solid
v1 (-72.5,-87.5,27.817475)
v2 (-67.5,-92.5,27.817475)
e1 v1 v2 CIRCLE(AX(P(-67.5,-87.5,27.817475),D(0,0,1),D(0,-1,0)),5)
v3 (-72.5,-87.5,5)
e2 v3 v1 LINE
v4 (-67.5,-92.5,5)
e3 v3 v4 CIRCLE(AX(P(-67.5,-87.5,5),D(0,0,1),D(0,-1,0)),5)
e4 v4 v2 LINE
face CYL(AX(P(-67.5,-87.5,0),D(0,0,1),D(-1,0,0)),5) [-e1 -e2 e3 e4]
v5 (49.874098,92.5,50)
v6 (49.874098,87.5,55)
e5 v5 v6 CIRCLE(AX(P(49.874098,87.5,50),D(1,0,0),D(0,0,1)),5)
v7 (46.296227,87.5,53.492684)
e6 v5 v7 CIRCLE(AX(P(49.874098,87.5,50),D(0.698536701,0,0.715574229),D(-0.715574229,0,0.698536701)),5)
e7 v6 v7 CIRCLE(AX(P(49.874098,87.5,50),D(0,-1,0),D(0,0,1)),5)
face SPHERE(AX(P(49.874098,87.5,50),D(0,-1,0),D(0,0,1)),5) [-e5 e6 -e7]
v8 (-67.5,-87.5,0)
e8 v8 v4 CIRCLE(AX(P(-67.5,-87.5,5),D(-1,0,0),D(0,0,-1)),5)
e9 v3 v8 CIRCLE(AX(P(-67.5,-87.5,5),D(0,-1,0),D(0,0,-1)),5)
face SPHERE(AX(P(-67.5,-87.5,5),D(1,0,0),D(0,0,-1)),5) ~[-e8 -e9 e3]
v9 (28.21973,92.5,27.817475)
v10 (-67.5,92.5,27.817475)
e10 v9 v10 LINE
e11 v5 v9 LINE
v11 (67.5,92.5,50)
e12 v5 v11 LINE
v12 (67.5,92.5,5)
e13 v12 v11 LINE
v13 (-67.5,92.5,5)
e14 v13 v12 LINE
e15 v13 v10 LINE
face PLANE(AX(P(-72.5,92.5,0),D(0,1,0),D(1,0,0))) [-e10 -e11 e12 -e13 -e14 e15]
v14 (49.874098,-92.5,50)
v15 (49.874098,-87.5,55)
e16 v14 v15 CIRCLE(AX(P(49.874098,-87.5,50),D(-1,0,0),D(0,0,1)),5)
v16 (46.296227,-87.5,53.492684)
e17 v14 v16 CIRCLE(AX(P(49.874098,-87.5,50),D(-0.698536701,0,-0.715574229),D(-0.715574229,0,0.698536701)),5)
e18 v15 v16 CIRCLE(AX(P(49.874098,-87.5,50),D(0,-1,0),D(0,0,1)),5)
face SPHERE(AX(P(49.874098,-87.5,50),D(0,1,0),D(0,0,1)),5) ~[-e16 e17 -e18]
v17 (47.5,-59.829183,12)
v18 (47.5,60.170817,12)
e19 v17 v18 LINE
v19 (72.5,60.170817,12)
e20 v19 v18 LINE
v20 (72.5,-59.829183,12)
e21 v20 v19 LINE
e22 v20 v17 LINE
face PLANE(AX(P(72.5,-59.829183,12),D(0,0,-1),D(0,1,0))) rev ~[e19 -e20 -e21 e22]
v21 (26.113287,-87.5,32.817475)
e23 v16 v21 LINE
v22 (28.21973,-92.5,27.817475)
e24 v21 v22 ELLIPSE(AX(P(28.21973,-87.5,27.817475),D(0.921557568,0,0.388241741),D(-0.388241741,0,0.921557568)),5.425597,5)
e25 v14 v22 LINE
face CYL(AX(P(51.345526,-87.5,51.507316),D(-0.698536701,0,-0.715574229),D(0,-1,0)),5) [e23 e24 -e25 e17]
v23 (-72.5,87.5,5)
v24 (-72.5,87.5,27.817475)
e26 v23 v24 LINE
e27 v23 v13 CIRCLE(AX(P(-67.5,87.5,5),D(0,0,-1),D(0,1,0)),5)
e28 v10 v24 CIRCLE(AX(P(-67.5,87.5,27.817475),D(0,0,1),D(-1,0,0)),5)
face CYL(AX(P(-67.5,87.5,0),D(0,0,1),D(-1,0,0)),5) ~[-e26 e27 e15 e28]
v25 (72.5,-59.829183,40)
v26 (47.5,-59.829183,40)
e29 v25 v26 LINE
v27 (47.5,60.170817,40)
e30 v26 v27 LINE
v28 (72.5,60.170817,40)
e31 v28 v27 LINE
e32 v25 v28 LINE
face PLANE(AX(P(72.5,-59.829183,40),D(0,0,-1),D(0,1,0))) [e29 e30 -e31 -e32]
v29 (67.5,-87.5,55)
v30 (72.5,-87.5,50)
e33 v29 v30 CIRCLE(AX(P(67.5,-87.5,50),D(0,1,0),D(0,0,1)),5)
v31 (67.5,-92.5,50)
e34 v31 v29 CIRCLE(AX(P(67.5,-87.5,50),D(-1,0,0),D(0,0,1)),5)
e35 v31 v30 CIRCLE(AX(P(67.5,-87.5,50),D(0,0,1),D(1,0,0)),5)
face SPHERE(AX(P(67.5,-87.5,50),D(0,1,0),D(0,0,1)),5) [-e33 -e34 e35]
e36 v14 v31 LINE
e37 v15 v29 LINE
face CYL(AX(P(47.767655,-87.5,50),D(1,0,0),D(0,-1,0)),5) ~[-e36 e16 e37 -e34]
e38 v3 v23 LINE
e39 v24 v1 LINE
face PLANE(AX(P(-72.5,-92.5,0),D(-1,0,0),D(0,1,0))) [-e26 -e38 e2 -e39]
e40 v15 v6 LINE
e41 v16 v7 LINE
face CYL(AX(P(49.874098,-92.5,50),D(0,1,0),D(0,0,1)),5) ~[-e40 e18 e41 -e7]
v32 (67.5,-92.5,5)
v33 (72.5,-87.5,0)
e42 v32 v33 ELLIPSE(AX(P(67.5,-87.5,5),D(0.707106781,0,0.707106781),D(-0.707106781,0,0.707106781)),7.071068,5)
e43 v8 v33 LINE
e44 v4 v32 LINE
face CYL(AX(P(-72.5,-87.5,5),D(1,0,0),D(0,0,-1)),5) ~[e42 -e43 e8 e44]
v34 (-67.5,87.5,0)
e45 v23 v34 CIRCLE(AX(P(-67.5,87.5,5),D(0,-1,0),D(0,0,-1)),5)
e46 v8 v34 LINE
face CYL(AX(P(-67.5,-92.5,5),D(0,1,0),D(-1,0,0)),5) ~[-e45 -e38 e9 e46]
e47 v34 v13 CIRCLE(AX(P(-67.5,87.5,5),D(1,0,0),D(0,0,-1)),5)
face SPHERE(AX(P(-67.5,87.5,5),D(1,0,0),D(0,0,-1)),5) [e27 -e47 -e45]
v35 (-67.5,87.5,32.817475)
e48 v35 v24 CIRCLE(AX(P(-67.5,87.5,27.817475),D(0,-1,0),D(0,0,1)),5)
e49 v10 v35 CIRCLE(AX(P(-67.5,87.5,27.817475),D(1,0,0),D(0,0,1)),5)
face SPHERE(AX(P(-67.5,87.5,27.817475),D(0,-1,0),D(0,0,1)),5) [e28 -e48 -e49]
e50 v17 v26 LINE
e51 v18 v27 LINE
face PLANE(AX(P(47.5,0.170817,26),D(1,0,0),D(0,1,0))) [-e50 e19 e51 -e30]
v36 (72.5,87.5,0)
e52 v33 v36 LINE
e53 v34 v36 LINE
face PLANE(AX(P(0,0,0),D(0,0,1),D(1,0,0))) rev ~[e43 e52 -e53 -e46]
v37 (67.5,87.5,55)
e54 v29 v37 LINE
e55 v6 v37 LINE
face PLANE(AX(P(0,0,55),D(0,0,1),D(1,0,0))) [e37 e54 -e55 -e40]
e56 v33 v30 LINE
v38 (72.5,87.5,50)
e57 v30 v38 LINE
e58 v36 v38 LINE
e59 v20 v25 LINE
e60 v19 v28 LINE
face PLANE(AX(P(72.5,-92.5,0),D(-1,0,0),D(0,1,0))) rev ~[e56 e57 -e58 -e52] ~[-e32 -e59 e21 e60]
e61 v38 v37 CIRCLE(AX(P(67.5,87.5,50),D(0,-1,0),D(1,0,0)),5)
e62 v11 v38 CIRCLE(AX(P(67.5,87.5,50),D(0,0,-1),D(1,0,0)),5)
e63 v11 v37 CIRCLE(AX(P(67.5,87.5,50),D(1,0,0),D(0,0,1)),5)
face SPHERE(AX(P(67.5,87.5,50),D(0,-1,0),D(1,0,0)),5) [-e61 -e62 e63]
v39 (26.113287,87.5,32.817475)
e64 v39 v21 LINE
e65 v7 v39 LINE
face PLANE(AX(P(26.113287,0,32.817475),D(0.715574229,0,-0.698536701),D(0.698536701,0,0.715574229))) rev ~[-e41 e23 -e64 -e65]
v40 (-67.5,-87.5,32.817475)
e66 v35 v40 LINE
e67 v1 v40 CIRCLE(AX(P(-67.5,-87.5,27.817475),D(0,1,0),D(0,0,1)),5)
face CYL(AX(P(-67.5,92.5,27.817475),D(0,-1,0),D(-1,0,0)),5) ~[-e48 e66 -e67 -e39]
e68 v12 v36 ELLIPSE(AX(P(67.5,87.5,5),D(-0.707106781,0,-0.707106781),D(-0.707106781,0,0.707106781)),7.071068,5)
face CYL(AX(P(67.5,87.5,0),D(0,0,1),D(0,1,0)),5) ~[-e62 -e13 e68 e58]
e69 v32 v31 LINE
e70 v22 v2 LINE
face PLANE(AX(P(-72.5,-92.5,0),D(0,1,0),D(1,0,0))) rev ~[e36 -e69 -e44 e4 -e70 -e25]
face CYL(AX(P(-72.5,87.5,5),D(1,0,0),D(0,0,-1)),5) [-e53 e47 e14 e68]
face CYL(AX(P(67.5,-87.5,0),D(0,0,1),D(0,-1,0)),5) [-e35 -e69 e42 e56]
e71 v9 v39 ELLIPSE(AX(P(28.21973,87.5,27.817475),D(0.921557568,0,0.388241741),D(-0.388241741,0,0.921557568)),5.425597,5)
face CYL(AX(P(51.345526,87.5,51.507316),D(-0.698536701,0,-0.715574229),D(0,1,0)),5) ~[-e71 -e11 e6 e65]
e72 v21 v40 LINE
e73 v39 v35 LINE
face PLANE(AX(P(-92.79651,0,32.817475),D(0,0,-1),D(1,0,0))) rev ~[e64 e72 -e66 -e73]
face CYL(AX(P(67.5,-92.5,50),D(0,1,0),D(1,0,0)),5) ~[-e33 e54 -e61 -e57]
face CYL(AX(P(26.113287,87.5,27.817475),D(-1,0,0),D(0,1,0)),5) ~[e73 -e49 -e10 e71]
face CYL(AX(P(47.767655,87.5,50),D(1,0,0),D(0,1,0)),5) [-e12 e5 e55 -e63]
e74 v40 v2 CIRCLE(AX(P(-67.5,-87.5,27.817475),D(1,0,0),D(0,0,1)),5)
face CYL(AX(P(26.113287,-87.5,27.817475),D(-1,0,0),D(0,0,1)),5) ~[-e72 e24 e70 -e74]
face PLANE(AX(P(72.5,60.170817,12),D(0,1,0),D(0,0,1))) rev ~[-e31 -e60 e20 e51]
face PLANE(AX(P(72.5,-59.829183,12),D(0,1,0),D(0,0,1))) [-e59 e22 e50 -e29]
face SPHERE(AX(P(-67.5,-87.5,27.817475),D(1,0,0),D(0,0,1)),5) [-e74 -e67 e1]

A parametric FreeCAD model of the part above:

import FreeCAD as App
import Part
import Sketcher

V = App.Vector


def edges_at(feature, points):
    """Names of the edges that pass closest to the given points."""
    edges = feature.Shape.Edges
    near = lambda p: min(range(len(edges)), key=lambda i: edges[i].distToShape(Part.Vertex(*p))[0])
    return sorted({f"Edge{near(p) + 1}" for p in points})


def add_polygon(sketch, points):
    """Adds a closed chain of lines whose ends are joined by coincident constraints."""
    first, n = sketch.GeometryCount, len(points)
    for a, b in zip(points, points[1:] + points[:1]):
        sketch.addGeometry(Part.LineSegment(App.Vector(*a, 0), App.Vector(*b, 0)), False)
    for i in range(n):
        sketch.addConstraint(Sketcher.Constraint("Coincident", first + i, 2, first + (i + 1) % n, 1))

doc = App.newDocument("Part")
body = doc.addObject("PartDesign::Body", "Body")

# Sketch on XY plane
sketch1 = body.newObject("Sketcher::SketchObject", "Sketch")
sketch1.AttachmentSupport = (doc.getObject("XY_Plane"), [""])
sketch1.MapMode = "FlatFace"
add_polygon(sketch1, [(-72, 92), (-72, -92), (72, -92), (72, 92)])  # lines 0-3
sketch1.addConstraint(Sketcher.Constraint("Vertical", 0))
sketch1.addConstraint(Sketcher.Constraint("Horizontal", 1))
sketch1.addConstraint(Sketcher.Constraint("Vertical", 2))
sketch1.addConstraint(Sketcher.Constraint("Horizontal", 3))
sketch1.addConstraint(Sketcher.Constraint("Symmetric", 0, 2, 2, 2, -1, 1))
sketch1.addConstraint(Sketcher.Constraint("DistanceX", 1, 1, 1, 2, 145.0))
sketch1.addConstraint(Sketcher.Constraint("DistanceY", 0, 2, 0, 1, 185.0))
pad1 = body.newObject("PartDesign::Pad", "Pad")
pad1.Profile = sketch1
pad1.Length = 55

# Sketch on XZ plane
sketch2 = body.newObject("Sketcher::SketchObject", "Sketch001")
sketch2.AttachmentSupport = (doc.getObject("XZ_Plane"), [""])
sketch2.MapMode = "FlatFace"
add_polygon(sketch2, [(-93, 55), (-93, 33), (26, 33), (48, 55)])  # lines 0-3
sketch2.addConstraint(Sketcher.Constraint("Horizontal", 1))
sketch2.addConstraint(Sketcher.Constraint("Horizontal", 3))
sketch2.addConstraint(Sketcher.Constraint("Distance", 0, 22.187128))
sketch2.addConstraint(Sketcher.Constraint("DistanceX", 1, 1, 1, 2, 118.909797))
sketch2.addConstraint(Sketcher.Constraint("DistanceX", 3, 2, 3, 1, 140.345706))
sketch2.addConstraint(Sketcher.Constraint("DistanceX", 0, 2, -1, 1, 92.79651))
sketch2.addConstraint(Sketcher.Constraint("DistanceX", 3, 2, -1, 1, 92.57464))
sketch2.addConstraint(Sketcher.Constraint("DistanceY", -1, 1, 0, 2, 32.817475))
pocket1 = body.newObject("PartDesign::Pocket", "Pocket")
pocket1.Profile = sketch2
pocket1.Length = 196
pocket1.Midplane = True

# Sketch on YZ plane
sketch3 = body.newObject("Sketcher::SketchObject", "Sketch002")
sketch3.AttachmentSupport = (doc.getObject("YZ_Plane"), [""])
sketch3.MapMode = "FlatFace"
sketch3.AttachmentOffset = App.Placement(V(0, 0, 72.5), App.Rotation())
add_polygon(sketch3, [(-60, 40), (-60, 12), (60, 12), (60, 40)])  # lines 0-3
sketch3.addConstraint(Sketcher.Constraint("Vertical", 0))
sketch3.addConstraint(Sketcher.Constraint("Horizontal", 1))
sketch3.addConstraint(Sketcher.Constraint("Vertical", 2))
sketch3.addConstraint(Sketcher.Constraint("Horizontal", 3))
sketch3.addConstraint(Sketcher.Constraint("DistanceX", 1, 1, 1, 2, 120.0))
sketch3.addConstraint(Sketcher.Constraint("DistanceY", 0, 2, 0, 1, 28.0))
sketch3.addConstraint(Sketcher.Constraint("DistanceY", -1, 1, 0, 2, 12.0))
sketch3.addConstraint(Sketcher.Constraint("DistanceX", 0, 2, -1, 1, 59.829183))
pocket2 = body.newObject("PartDesign::Pocket", "Pocket001")
pocket2.Profile = sketch3
pocket2.Length = 25
doc.recompute()

fillet = body.newObject("PartDesign::Fillet", "Fillet")
fillet.Base = (pocket2, edges_at(pocket2, [
    (-23.193, -92.5, 32.817),
    (36.94, -92.5, 43.909),
    (-72.5, 0, 32.817),
    (-23.193, 92.5, 32.817),
    (36.94, 92.5, 43.909),
    (47.768, 0, 55),
    (72.5, 0, 55),
    (60.134, -92.5, 55),
    (72.5, -92.5, 27.5),
    (72.5, 92.5, 27.5),
    (60.134, 92.5, 55),
    (0, -92.5, 0),
    (0, 92.5, 0),
    (-72.5, 0, 0),
    (-72.5, -92.5, 16.409),
    (-72.5, 92.5, 16.409),
]))
fillet.Radius = 5

doc.recompute()
